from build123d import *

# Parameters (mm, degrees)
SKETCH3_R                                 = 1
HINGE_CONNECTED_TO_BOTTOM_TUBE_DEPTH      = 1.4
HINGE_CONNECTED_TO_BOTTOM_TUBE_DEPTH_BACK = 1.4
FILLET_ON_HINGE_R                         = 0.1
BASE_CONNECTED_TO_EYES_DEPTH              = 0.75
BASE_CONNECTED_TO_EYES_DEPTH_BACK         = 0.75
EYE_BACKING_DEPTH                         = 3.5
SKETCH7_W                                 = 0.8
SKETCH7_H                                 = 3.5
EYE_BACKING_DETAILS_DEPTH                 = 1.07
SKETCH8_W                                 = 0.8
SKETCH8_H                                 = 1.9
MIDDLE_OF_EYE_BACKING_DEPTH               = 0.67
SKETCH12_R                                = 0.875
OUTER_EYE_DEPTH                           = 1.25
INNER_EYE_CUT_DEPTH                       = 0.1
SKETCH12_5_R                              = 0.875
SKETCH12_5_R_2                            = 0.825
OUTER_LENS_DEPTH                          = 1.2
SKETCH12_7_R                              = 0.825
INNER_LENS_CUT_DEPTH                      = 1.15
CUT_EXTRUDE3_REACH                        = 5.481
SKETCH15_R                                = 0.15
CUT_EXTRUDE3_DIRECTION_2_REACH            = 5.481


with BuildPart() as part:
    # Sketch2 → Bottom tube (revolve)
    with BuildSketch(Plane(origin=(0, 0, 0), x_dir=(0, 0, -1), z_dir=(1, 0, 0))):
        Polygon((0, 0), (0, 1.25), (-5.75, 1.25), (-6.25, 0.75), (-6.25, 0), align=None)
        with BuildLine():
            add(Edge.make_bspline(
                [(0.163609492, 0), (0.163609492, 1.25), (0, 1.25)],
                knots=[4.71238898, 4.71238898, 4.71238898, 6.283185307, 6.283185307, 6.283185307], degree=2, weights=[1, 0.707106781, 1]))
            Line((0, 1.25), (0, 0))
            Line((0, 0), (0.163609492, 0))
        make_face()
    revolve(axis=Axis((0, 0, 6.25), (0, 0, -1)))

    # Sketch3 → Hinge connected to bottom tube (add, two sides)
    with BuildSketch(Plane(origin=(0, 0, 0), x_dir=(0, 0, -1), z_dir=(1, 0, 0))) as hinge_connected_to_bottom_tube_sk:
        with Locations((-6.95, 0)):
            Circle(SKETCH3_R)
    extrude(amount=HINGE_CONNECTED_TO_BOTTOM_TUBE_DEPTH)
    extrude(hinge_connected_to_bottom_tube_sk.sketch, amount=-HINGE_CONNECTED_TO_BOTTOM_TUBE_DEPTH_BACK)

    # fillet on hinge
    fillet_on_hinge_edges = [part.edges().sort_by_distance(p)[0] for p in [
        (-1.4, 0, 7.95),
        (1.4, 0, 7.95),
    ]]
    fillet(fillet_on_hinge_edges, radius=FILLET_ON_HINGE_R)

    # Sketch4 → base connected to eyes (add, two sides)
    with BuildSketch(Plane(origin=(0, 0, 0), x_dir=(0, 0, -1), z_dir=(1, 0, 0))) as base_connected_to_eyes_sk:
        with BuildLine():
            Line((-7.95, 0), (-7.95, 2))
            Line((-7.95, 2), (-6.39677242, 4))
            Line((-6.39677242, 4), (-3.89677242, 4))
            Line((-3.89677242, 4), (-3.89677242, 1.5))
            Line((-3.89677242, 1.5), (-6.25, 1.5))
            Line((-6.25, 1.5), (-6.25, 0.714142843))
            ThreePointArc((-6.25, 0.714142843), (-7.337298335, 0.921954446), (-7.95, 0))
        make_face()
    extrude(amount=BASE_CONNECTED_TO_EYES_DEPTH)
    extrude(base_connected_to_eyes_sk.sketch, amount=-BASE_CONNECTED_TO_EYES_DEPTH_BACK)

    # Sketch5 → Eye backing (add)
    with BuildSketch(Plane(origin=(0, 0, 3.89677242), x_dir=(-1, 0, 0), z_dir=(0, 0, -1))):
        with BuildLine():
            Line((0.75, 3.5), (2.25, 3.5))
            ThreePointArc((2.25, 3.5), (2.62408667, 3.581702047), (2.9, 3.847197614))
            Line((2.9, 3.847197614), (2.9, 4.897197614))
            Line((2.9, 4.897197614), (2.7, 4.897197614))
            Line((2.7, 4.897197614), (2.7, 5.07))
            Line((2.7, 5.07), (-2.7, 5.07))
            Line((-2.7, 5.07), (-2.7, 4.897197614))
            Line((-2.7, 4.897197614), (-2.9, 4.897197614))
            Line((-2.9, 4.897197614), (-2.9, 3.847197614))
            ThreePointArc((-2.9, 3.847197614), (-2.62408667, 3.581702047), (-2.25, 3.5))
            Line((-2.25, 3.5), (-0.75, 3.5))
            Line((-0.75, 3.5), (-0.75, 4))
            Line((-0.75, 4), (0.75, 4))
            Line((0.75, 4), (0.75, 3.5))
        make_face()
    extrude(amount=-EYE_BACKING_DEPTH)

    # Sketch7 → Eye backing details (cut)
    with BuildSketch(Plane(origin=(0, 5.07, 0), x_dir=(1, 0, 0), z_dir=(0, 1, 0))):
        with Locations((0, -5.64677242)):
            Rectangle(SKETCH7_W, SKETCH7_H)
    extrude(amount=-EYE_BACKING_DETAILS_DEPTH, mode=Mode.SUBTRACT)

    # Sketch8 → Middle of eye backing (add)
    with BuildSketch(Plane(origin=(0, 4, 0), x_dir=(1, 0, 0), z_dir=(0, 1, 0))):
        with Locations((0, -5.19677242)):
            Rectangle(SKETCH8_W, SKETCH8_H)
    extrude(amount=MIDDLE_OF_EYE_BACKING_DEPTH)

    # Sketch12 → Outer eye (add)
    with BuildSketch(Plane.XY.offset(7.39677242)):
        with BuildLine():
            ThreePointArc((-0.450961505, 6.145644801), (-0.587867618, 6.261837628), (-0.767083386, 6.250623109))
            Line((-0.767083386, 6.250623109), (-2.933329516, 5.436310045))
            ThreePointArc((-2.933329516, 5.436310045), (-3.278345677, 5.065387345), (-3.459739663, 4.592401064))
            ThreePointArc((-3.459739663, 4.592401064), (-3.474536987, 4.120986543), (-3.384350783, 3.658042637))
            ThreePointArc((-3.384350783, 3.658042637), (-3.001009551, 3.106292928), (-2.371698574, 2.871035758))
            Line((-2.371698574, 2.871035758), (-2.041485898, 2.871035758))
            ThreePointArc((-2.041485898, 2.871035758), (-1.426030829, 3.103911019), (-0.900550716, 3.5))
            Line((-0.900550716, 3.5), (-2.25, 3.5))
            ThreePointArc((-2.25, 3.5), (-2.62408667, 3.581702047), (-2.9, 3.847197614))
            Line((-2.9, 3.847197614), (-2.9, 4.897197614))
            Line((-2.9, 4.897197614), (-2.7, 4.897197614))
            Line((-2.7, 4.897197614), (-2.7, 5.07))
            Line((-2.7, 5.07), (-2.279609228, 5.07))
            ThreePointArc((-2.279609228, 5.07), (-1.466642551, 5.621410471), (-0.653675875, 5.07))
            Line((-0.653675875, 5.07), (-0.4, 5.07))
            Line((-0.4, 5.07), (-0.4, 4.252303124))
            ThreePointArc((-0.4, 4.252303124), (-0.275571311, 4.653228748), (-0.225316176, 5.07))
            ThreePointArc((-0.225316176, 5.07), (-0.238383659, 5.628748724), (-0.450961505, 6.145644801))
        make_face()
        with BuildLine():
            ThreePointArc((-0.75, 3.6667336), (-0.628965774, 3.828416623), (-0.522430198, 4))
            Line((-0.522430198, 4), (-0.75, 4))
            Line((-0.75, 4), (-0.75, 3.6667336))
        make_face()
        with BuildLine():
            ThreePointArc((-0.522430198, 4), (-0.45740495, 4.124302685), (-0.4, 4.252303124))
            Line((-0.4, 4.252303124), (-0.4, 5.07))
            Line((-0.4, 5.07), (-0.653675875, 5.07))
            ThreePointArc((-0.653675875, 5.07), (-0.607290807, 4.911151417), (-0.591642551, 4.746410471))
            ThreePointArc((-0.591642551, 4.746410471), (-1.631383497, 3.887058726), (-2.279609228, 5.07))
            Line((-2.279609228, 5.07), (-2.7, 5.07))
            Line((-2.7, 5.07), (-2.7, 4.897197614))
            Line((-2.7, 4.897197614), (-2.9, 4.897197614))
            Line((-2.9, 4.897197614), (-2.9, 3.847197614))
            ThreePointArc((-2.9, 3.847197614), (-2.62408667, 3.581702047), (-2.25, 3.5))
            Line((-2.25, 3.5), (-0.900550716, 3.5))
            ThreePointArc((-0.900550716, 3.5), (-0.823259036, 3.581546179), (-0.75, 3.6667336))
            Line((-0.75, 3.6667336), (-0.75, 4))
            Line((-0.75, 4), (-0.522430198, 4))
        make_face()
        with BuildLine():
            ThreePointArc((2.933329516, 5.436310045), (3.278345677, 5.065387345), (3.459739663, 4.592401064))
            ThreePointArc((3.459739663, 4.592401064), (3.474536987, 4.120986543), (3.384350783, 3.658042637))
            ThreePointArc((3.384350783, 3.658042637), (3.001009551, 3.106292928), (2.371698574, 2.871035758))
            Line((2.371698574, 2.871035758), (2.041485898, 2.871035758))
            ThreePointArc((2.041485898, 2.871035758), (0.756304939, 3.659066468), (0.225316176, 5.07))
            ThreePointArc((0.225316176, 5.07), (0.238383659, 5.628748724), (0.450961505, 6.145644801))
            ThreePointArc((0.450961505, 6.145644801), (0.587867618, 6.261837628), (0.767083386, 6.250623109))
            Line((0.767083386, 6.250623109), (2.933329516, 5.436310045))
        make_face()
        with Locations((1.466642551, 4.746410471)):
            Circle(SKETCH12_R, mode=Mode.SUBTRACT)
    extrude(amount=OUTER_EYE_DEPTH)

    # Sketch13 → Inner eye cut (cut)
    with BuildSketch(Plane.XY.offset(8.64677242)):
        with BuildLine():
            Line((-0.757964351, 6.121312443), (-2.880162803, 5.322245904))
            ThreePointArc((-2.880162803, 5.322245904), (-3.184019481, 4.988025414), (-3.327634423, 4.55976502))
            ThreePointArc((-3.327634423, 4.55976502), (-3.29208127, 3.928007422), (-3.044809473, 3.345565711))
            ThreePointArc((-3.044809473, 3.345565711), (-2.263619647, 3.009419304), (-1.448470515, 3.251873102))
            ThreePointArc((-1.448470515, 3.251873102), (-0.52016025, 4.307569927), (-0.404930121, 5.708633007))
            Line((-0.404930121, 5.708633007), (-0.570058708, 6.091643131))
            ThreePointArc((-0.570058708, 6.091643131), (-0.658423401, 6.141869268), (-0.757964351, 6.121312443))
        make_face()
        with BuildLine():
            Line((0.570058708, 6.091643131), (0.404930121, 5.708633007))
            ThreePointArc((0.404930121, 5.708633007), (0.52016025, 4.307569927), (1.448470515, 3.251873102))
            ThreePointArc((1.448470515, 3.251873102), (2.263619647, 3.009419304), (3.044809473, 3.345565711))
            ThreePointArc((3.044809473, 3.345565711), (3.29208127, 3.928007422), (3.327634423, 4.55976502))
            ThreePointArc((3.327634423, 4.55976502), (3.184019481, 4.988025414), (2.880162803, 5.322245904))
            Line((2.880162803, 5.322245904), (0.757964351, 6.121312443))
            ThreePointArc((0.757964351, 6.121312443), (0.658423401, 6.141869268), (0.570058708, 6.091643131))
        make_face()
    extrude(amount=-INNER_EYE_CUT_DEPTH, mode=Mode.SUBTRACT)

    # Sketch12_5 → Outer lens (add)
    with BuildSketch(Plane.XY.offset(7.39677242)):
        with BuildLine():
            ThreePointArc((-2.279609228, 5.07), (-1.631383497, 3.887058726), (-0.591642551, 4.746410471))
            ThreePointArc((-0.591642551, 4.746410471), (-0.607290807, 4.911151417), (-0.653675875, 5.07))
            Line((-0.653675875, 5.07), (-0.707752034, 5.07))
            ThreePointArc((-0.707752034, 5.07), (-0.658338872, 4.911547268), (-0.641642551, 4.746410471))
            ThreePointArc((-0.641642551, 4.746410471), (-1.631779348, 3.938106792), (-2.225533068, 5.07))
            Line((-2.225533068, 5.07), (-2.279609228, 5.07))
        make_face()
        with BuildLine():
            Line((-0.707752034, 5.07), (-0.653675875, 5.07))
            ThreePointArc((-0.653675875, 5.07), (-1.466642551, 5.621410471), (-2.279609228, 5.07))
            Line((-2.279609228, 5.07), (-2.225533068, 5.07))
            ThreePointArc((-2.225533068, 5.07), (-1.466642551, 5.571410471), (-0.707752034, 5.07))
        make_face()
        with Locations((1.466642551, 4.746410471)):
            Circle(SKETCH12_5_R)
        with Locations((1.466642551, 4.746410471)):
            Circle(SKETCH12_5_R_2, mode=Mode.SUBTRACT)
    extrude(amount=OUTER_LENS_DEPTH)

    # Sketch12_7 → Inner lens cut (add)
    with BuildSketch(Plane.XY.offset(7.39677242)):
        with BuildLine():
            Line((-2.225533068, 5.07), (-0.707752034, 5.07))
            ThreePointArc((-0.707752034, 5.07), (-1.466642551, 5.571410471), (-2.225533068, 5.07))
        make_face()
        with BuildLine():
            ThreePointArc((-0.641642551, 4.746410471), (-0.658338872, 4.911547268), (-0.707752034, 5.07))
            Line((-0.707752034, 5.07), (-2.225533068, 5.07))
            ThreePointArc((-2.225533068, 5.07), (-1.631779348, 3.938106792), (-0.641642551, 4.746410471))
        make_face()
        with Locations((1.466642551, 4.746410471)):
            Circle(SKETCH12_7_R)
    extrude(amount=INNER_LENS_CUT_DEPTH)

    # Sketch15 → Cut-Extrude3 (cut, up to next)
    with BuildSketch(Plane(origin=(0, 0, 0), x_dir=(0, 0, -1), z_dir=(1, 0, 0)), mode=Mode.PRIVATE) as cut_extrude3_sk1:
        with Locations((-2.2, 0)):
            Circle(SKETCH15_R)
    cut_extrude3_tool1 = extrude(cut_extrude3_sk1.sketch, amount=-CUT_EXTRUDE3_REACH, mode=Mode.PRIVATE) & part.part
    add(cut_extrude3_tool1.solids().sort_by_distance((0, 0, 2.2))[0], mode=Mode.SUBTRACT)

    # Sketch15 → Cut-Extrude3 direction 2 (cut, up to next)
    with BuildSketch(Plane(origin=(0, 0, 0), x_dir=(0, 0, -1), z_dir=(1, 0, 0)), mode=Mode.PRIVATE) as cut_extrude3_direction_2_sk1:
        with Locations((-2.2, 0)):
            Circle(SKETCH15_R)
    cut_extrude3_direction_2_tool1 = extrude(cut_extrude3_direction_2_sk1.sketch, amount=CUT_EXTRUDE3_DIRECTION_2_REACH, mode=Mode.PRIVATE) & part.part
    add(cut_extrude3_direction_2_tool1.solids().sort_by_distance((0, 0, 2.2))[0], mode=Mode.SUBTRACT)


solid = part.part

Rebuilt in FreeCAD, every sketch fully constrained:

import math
import FreeCAD as App
import Part
import Sketcher


def edges_at(feature, points):
    """Names of the edges that pass closest to the given points."""
    edges = feature.Shape.Edges
    near = lambda p: min(range(len(edges)), key=lambda i: edges[i].distToShape(Part.Vertex(*p))[0])
    return sorted({f"Edge{near(p) + 1}" for p in points})

doc = App.newDocument("Part")
body = doc.addObject("PartDesign::Body", "Body")

sketch1 = body.newObject("Sketcher::SketchObject", "Sketch")
sketch1.AttachmentSupport = (doc.getObject("YZ_Plane"), [""])
sketch1.MapMode = "FlatFace"
sketch1.addGeometry(Part.LineSegment(App.Vector(1.25, 0, 0), App.Vector(1.25, 5.75, 0)), False)
sketch1.addGeometry(Part.LineSegment(App.Vector(1.25, 5.75, 0), App.Vector(0.75, 6.25, 0)), False)
sketch1.addGeometry(Part.LineSegment(App.Vector(0.75, 6.25, 0), App.Vector(0, 6.25, 0)), False)
sketch1.addGeometry(Part.LineSegment(App.Vector(0, 6.25, 0), App.Vector(0, -0.163609, 0)), False)
sketch1.addGeometry(Part.BSplineCurve([App.Vector(0, -0.163609, 0), App.Vector(1.25, -0.163609, 0), App.Vector(1.25, 0, 0)], [3, 3], [4.71238898, 6.283185307], False, 2, [1, 0.707106781, 1], False), False)
sketch1.addConstraint(Sketcher.Constraint("Block", 4))
sketch1.addConstraint(Sketcher.Constraint("Coincident", 0, 2, 1, 1))
sketch1.addConstraint(Sketcher.Constraint("Coincident", 1, 2, 2, 1))
sketch1.addConstraint(Sketcher.Constraint("Coincident", 2, 2, 3, 1))
sketch1.addConstraint(Sketcher.Constraint("Coincident", 3, 2, 4, 1))
sketch1.addConstraint(Sketcher.Constraint("Coincident", 4, 2, 0, 1))
sketch1.addConstraint(Sketcher.Constraint("Vertical", 0))
sketch1.addConstraint(Sketcher.Constraint("Horizontal", 2))
sketch1.addConstraint(Sketcher.Constraint("Vertical", 3))
sketch1.addConstraint(Sketcher.Constraint("DistanceX", 2, 2, 2, 1, 0.75))
sketch1.addConstraint(Sketcher.Constraint("DistanceY", 0, 1, 0, 2, 5.75))
sketch1.addConstraint(Sketcher.Constraint("DistanceY", 0, 2, 1, 2, 0.5))
revolution = body.newObject("PartDesign::Revolution", "Revolution")
revolution.Profile = sketch1
revolution.ReferenceAxis = (sketch1, ["V_Axis"])
revolution.Angle = 360

sketch2 = body.newObject("Sketcher::SketchObject", "Sketch001")
sketch2.AttachmentSupport = (doc.getObject("YZ_Plane"), [""])
sketch2.MapMode = "FlatFace"
sketch2.addGeometry(Part.Circle(App.Vector(0, 7, 0), App.Vector(0, 0, 1), 1), False)
sketch2.addConstraint(Sketcher.Constraint("PointOnObject", 0, 3, -2))
sketch2.addConstraint(Sketcher.Constraint("Diameter", 0, 2.0))
sketch2.addConstraint(Sketcher.Constraint("DistanceY", -1, 1, 0, 3, 6.95))
pad1 = body.newObject("PartDesign::Pad", "Pad")
pad1.Profile = sketch2
pad1.Type = "TwoLengths"
pad1.Length = 1.4
pad1.Length2 = 1.4
doc.recompute()

fillet = body.newObject("PartDesign::Fillet", "Fillet")
fillet.Base = (pad1, edges_at(pad1, [(-1.4, 0, 7.95), (1.4, 0, 7.95)]))
fillet.Radius = 0.1

sketch3 = body.newObject("Sketcher::SketchObject", "Sketch002")
sketch3.AttachmentSupport = (doc.getObject("YZ_Plane"), [""])
sketch3.MapMode = "FlatFace"
sketch3.addGeometry(Part.LineSegment(App.Vector(2, 8, 0), App.Vector(0, 8, 0)), False)
sketch3.addGeometry(Part.ArcOfCircle(Part.Circle(App.Vector(0, 7, 0), App.Vector(0, 0, 1), 1), math.radians(-44), math.radians(90)), False)
sketch3.addGeometry(Part.LineSegment(App.Vector(0.7, 6.2, 0), App.Vector(1.5, 6.2, 0)), False)
sketch3.addGeometry(Part.LineSegment(App.Vector(1.5, 6.2, 0), App.Vector(1.5, 3.9, 0)), False)
sketch3.addGeometry(Part.LineSegment(App.Vector(1.5, 3.9, 0), App.Vector(4, 3.9, 0)), False)
sketch3.addGeometry(Part.LineSegment(App.Vector(4, 3.9, 0), App.Vector(4, 6.4, 0)), False)
sketch3.addGeometry(Part.LineSegment(App.Vector(4, 6.4, 0), App.Vector(2, 8, 0)), False)
sketch3.addConstraint(Sketcher.Constraint("Tangent", 0, 2, 1, 2))
sketch3.addConstraint(Sketcher.Constraint("Coincident", 1, 1, 2, 1))
sketch3.addConstraint(Sketcher.Constraint("Coincident", 2, 2, 3, 1))
sketch3.addConstraint(Sketcher.Constraint("Coincident", 3, 2, 4, 1))
sketch3.addConstraint(Sketcher.Constraint("Coincident", 4, 2, 5, 1))
sketch3.addConstraint(Sketcher.Constraint("Coincident", 5, 2, 6, 1))
sketch3.addConstraint(Sketcher.Constraint("Coincident", 6, 2, 0, 1))
sketch3.addConstraint(Sketcher.Constraint("Horizontal", 0))
sketch3.addConstraint(Sketcher.Constraint("Horizontal", 2))
sketch3.addConstraint(Sketcher.Constraint("Vertical", 3))
sketch3.addConstraint(Sketcher.Constraint("Horizontal", 4))
sketch3.addConstraint(Sketcher.Constraint("Vertical", 5))
sketch3.addConstraint(Sketcher.Constraint("PointOnObject", 1, 3, -2))
sketch3.addConstraint(Sketcher.Constraint("Equal", 4, 5))
sketch3.addConstraint(Sketcher.Constraint("Radius", 1, 1.0))
sketch3.addConstraint(Sketcher.Constraint("DistanceX", 0, 2, 0, 1, 2.0))
sketch3.addConstraint(Sketcher.Constraint("DistanceX", 4, 1, 4, 2, 2.5))
sketch3.addConstraint(Sketcher.Constraint("DistanceX", -1, 1, 4, 2, 4.0))
sketch3.addConstraint(Sketcher.Constraint("DistanceY", 1, 1, 1, 3, 0.7))
sketch3.addConstraint(Sketcher.Constraint("DistanceY", -1, 1, 1, 3, 6.95))
sketch3.addConstraint(Sketcher.Constraint("DistanceY", 3, 2, 3, 1, 2.353228))
pad2 = body.newObject("PartDesign::Pad", "Pad001")
pad2.Profile = sketch3
pad2.Type = "TwoLengths"
pad2.Length = 0.75
pad2.Length2 = 0.75

sketch4 = body.newObject("Sketcher::SketchObject", "Sketch003")
sketch4.AttachmentSupport = (doc.getObject("XY_Plane"), [""])
sketch4.MapMode = "FlatFace"
sketch4.AttachmentOffset = App.Placement(App.Vector(0, 0, 3.896772), App.Rotation())
sketch4.addGeometry(Part.LineSegment(App.Vector(-0.75, 3.5, 0), App.Vector(-2.25, 3.5, 0)), False)
sketch4.addGeometry(Part.ArcOfCircle(Part.Circle(App.Vector(-2.29, 4.2, 0), App.Vector(0, 0, 1), 0.7), math.radians(-150), math.radians(-87)), False)
sketch4.addGeometry(Part.LineSegment(App.Vector(-2.9, 3.85, 0), App.Vector(-2.9, 4.9, 0)), False)
sketch4.addGeometry(Part.LineSegment(App.Vector(-2.9, 4.9, 0), App.Vector(-2.7, 4.9, 0)), False)
sketch4.addGeometry(Part.LineSegment(App.Vector(-2.7, 4.9, 0), App.Vector(-2.7, 5.07, 0)), False)
sketch4.addGeometry(Part.LineSegment(App.Vector(-2.7, 5.07, 0), App.Vector(2.7, 5.07, 0)), False)
sketch4.addGeometry(Part.LineSegment(App.Vector(2.7, 5.07, 0), App.Vector(2.7, 4.9, 0)), False)
sketch4.addGeometry(Part.LineSegment(App.Vector(2.7, 4.9, 0), App.Vector(2.9, 4.9, 0)), False)
sketch4.addGeometry(Part.LineSegment(App.Vector(2.9, 4.9, 0), App.Vector(2.9, 3.85, 0)), False)
sketch4.addGeometry(Part.ArcOfCircle(Part.Circle(App.Vector(2.29, 4.2, 0), App.Vector(0, 0, 1), 0.7), math.radians(-93), math.radians(-30)), False)
sketch4.addGeometry(Part.LineSegment(App.Vector(2.25, 3.5, 0), App.Vector(0.75, 3.5, 0)), False)
sketch4.addGeometry(Part.LineSegment(App.Vector(0.75, 3.5, 0), App.Vector(0.75, 4, 0)), False)
sketch4.addGeometry(Part.LineSegment(App.Vector(0.75, 4, 0), App.Vector(-0.75, 4, 0)), False)
sketch4.addGeometry(Part.LineSegment(App.Vector(-0.75, 4, 0), App.Vector(-0.75, 3.5, 0)), False)
sketch4.addConstraint(Sketcher.Constraint("Coincident", 0, 2, 1, 2))
sketch4.addConstraint(Sketcher.Constraint("Coincident", 1, 1, 2, 1))
sketch4.addConstraint(Sketcher.Constraint("Coincident", 2, 2, 3, 1))
sketch4.addConstraint(Sketcher.Constraint("Coincident", 3, 2, 4, 1))
sketch4.addConstraint(Sketcher.Constraint("Coincident", 4, 2, 5, 1))
sketch4.addConstraint(Sketcher.Constraint("Coincident", 5, 2, 6, 1))
sketch4.addConstraint(Sketcher.Constraint("Coincident", 6, 2, 7, 1))
sketch4.addConstraint(Sketcher.Constraint("Coincident", 7, 2, 8, 1))
sketch4.addConstraint(Sketcher.Constraint("Coincident", 8, 2, 9, 2))
sketch4.addConstraint(Sketcher.Constraint("Coincident", 9, 1, 10, 1))
sketch4.addConstraint(Sketcher.Constraint("Coincident", 10, 2, 11, 1))
sketch4.addConstraint(Sketcher.Constraint("Coincident", 11, 2, 12, 1))
sketch4.addConstraint(Sketcher.Constraint("Coincident", 12, 2, 13, 1))
sketch4.addConstraint(Sketcher.Constraint("Coincident", 13, 2, 0, 1))
sketch4.addConstraint(Sketcher.Constraint("Horizontal", 0))
sketch4.addConstraint(Sketcher.Constraint("Vertical", 2))
sketch4.addConstraint(Sketcher.Constraint("Horizontal", 3))
sketch4.addConstraint(Sketcher.Constraint("Vertical", 4))
sketch4.addConstraint(Sketcher.Constraint("Horizontal", 5))
sketch4.addConstraint(Sketcher.Constraint("Vertical", 6))
sketch4.addConstraint(Sketcher.Constraint("Horizontal", 7))
sketch4.addConstraint(Sketcher.Constraint("Vertical", 8))
sketch4.addConstraint(Sketcher.Constraint("Horizontal", 10))
sketch4.addConstraint(Sketcher.Constraint("Vertical", 11))
sketch4.addConstraint(Sketcher.Constraint("Horizontal", 12))
sketch4.addConstraint(Sketcher.Constraint("Vertical", 13))
sketch4.addConstraint(Sketcher.Constraint("Equal", 1, 9))
sketch4.addConstraint(Sketcher.Constraint("Symmetric", 1, 3, 9, 3, -2))
sketch4.addConstraint(Sketcher.Constraint("Symmetric", 3, 2, 6, 2, -2))
sketch4.addConstraint(Sketcher.Constraint("Symmetric", 10, 2, 13, 2, -2))
sketch4.addConstraint(Sketcher.Constraint("Horizontal", 1, 1, 8, 2))
sketch4.addConstraint(Sketcher.Constraint("Equal", 10, 12))
sketch4.addConstraint(Sketcher.Constraint("DistanceX", 0, 2, 0, 1, 1.5))
sketch4.addConstraint(Sketcher.Constraint("DistanceX", 3, 1, 3, 2, 0.2))
sketch4.addConstraint(Sketcher.Constraint("DistanceX", 5, 1, 5, 2, 5.4))
sketch4.addConstraint(Sketcher.Constraint("DistanceY", 11, 1, 11, 2, 0.5))
sketch4.addConstraint(Sketcher.Constraint("DistanceY", -1, 1, 11, 2, 4.0))
sketch4.addConstraint(Sketcher.Constraint("DistanceY", 2, 1, 2, 2, 1.05))
sketch4.addConstraint(Sketcher.Constraint("DistanceY", -1, 1, 4, 2, 5.07))
sketch4.addConstraint(Sketcher.Constraint("Radius", 1, 0.703633))
sketch4.addConstraint(Sketcher.Constraint("DistanceY", 4, 1, 4, 2, 0.172802))
pad3 = body.newObject("PartDesign::Pad", "Pad002")
pad3.Profile = sketch4
pad3.Length = 3.5

sketch5 = body.newObject("Sketcher::SketchObject", "Sketch004")
sketch5.AttachmentSupport = (doc.getObject("XZ_Plane"), [""])
sketch5.MapMode = "FlatFace"
sketch5.AttachmentOffset = App.Placement(App.Vector(0, 0, -5.07), App.Rotation())
sketch5.addGeometry(Part.LineSegment(App.Vector(-0.4, 3.9, 0), App.Vector(-0.4, 7.4, 0)), False)
sketch5.addGeometry(Part.LineSegment(App.Vector(-0.4, 7.4, 0), App.Vector(0.4, 7.4, 0)), False)
sketch5.addGeometry(Part.LineSegment(App.Vector(0.4, 7.4, 0), App.Vector(0.4, 3.9, 0)), False)
sketch5.addGeometry(Part.LineSegment(App.Vector(0.4, 3.9, 0), App.Vector(-0.4, 3.9, 0)), False)
sketch5.addConstraint(Sketcher.Constraint("Coincident", 0, 2, 1, 1))
sketch5.addConstraint(Sketcher.Constraint("Coincident", 1, 2, 2, 1))
sketch5.addConstraint(Sketcher.Constraint("Coincident", 2, 2, 3, 1))
sketch5.addConstraint(Sketcher.Constraint("Coincident", 3, 2, 0, 1))
sketch5.addConstraint(Sketcher.Constraint("Vertical", 0))
sketch5.addConstraint(Sketcher.Constraint("Horizontal", 1))
sketch5.addConstraint(Sketcher.Constraint("Vertical", 2))
sketch5.addConstraint(Sketcher.Constraint("Horizontal", 3))
sketch5.addConstraint(Sketcher.Constraint("DistanceX", 1, 1, 1, 2, 0.8))
sketch5.addConstraint(Sketcher.Constraint("DistanceY", 0, 1, 0, 2, 3.5))
sketch5.addConstraint(Sketcher.Constraint("DistanceX", 0, 2, -1, 1, 0.4))
sketch5.addConstraint(Sketcher.Constraint("DistanceY", -1, 1, 0, 2, 7.396772))
pocket1 = body.newObject("PartDesign::Pocket", "Pocket")
pocket1.Profile = sketch5
pocket1.Length = 1.07
pocket1.Reversed = True

sketch6 = body.newObject("Sketcher::SketchObject", "Sketch005")
sketch6.AttachmentSupport = (doc.getObject("XZ_Plane"), [""])
sketch6.MapMode = "FlatFace"
sketch6.AttachmentOffset = App.Placement(App.Vector(0, 0, -4), App.Rotation())
sketch6.addGeometry(Part.LineSegment(App.Vector(-0.4, 4.2, 0), App.Vector(-0.4, 6.1, 0)), False)
sketch6.addGeometry(Part.LineSegment(App.Vector(-0.4, 6.1, 0), App.Vector(0.4, 6.1, 0)), False)
sketch6.addGeometry(Part.LineSegment(App.Vector(0.4, 6.1, 0), App.Vector(0.4, 4.2, 0)), False)
sketch6.addGeometry(Part.LineSegment(App.Vector(0.4, 4.2, 0), App.Vector(-0.4, 4.2, 0)), False)
sketch6.addConstraint(Sketcher.Constraint("Coincident", 0, 2, 1, 1))
sketch6.addConstraint(Sketcher.Constraint("Coincident", 1, 2, 2, 1))
sketch6.addConstraint(Sketcher.Constraint("Coincident", 2, 2, 3, 1))
sketch6.addConstraint(Sketcher.Constraint("Coincident", 3, 2, 0, 1))
sketch6.addConstraint(Sketcher.Constraint("Vertical", 0))
sketch6.addConstraint(Sketcher.Constraint("Horizontal", 1))
sketch6.addConstraint(Sketcher.Constraint("Vertical", 2))
sketch6.addConstraint(Sketcher.Constraint("Horizontal", 3))
sketch6.addConstraint(Sketcher.Constraint("DistanceX", 1, 1, 1, 2, 0.8))
sketch6.addConstraint(Sketcher.Constraint("DistanceY", 0, 1, 0, 2, 1.9))
sketch6.addConstraint(Sketcher.Constraint("DistanceX", 0, 2, -1, 1, 0.4))
sketch6.addConstraint(Sketcher.Constraint("DistanceY", -1, 1, 0, 2, 6.146772))
pad4 = body.newObject("PartDesign::Pad", "Pad003")
pad4.Profile = sketch6
pad4.Length = 0.67
pad4.Reversed = True

sketch7 = body.newObject("Sketcher::SketchObject", "Sketch006")
sketch7.AttachmentSupport = (doc.getObject("XY_Plane"), [""])
sketch7.MapMode = "FlatFace"
sketch7.AttachmentOffset = App.Placement(App.Vector(0, 0, 7.396772), App.Rotation())
sketch7.addGeometry(Part.ArcOfCircle(Part.Circle(App.Vector(-0.66, 6.03, 0), App.Vector(0, 0, 1), 0.24), math.radians(28), math.radians(116)), False)
sketch7.addGeometry(Part.LineSegment(App.Vector(-0.77, 6.25, 0), App.Vector(-2.93, 5.44, 0)), False)
sketch7.addGeometry(Part.ArcOfCircle(Part.Circle(App.Vector(-2.15, 4.36, 0), App.Vector(0, 0, 1), 1.33), math.radians(126), math.radians(170)), False)
sketch7.addGeometry(Part.ArcOfCircle(Part.Circle(App.Vector(-1.37, 4.29, 0), App.Vector(0, 0, 1), 2.11), math.radians(172), math.radians(197)), False)
sketch7.addGeometry(Part.ArcOfCircle(Part.Circle(App.Vector(-2.31, 4, 0), App.Vector(0, 0, 1), 1.13), math.radians(-163), math.radians(-93)), False)
sketch7.addGeometry(Part.LineSegment(App.Vector(-2.37, 2.87, 0), App.Vector(-2.04, 2.87, 0)), False)
sketch7.addGeometry(Part.ArcOfCircle(Part.Circle(App.Vector(-2.55, 5.14, 0), App.Vector(0, 0, 1), 2.32), math.radians(-77), math.radians(-45)), False)
sketch7.addGeometry(Part.ArcOfCircle(Part.Circle(App.Vector(-2.55, 5.14, 0), App.Vector(0, 0, 1), 2.32), math.radians(-44.85), math.radians(-39.31)), False)
sketch7.addGeometry(Part.ArcOfCircle(Part.Circle(App.Vector(-2.55, 5.14, 0), App.Vector(0, 0, 1), 2.32), math.radians(-39.31), math.radians(-29.34)), False)
sketch7.addGeometry(Part.ArcOfCircle(Part.Circle(App.Vector(-2.55, 5.14, 0), App.Vector(0, 0, 1), 2.32), math.radians(-29.34), math.radians(-22.43)), False)
sketch7.addGeometry(Part.ArcOfCircle(Part.Circle(App.Vector(-2.55, 5.14, 0), App.Vector(0, 0, 1), 2.32), math.radians(-22), math.radians(-2)), False)
sketch7.addGeometry(Part.ArcOfCircle(Part.Circle(App.Vector(-1.74, 5.31, 0), App.Vector(0, 0, 1), 1.53), math.radians(-9), math.radians(33)), False)
sketch7.addGeometry(Part.ArcOfCircle(Part.Circle(App.Vector(-1.47, 4.75, 0), App.Vector(0, 0, 1), 0.88), math.radians(22), math.radians(158)), False)
sketch7.addGeometry(Part.ArcOfCircle(Part.Circle(App.Vector(-1.47, 4.75, 0), App.Vector(0, 0, 1), 0.88), math.radians(0), math.radians(22)), False)
sketch7.addGeometry(Part.ArcOfCircle(Part.Circle(App.Vector(-1.47, 4.75, 0), App.Vector(0, 0, 1), 0.88), math.radians(158), math.radians(360)), False)
sketch7.addGeometry(Part.ArcOfCircle(Part.Circle(App.Vector(2.15, 4.36, 0), App.Vector(0, 0, 1), 1.33), math.radians(10), math.radians(54)), False)
sketch7.addGeometry(Part.LineSegment(App.Vector(2.93, 5.44, 0), App.Vector(0.77, 6.25, 0)), False)
sketch7.addGeometry(Part.ArcOfCircle(Part.Circle(App.Vector(0.66, 6.03, 0), App.Vector(0, 0, 1), 0.24), math.radians(64), math.radians(152)), False)
sketch7.addGeometry(Part.ArcOfCircle(Part.Circle(App.Vector(1.74, 5.31, 0), App.Vector(0, 0, 1), 1.53), math.radians(147), math.radians(189)), False)
sketch7.addGeometry(Part.ArcOfCircle(Part.Circle(App.Vector(2.55, 5.14, 0), App.Vector(0, 0, 1), 2.32), math.radians(-178), math.radians(-103)), False)
sketch7.addGeometry(Part.LineSegment(App.Vector(2.04, 2.87, 0), App.Vector(2.37, 2.87, 0)), False)
sketch7.addGeometry(Part.ArcOfCircle(Part.Circle(App.Vector(2.31, 4, 0), App.Vector(0, 0, 1), 1.13), math.radians(-87), math.radians(-17)), False)
sketch7.addGeometry(Part.ArcOfCircle(Part.Circle(App.Vector(1.37, 4.29, 0), App.Vector(0, 0, 1), 2.11), math.radians(-17), math.radians(8)), False)
sketch7.addGeometry(Part.Circle(App.Vector(1.47, 4.75, 0), App.Vector(0, 0, 1), 0.88), False)
sketch7.addConstraint(Sketcher.Constraint("Coincident", 0, 2, 1, 1))
sketch7.addConstraint(Sketcher.Constraint("Coincident", 1, 2, 2, 1))
sketch7.addConstraint(Sketcher.Constraint("Coincident", 2, 2, 3, 1))
sketch7.addConstraint(Sketcher.Constraint("Tangent", 3, 2, 4, 1))
sketch7.addConstraint(Sketcher.Constraint("Coincident", 4, 2, 5, 1))
sketch7.addConstraint(Sketcher.Constraint("Coincident", 5, 2, 6, 1))
sketch7.addConstraint(Sketcher.Constraint("Tangent", 6, 2, 7, 1))
sketch7.addConstraint(Sketcher.Constraint("Tangent", 7, 2, 8, 1))
sketch7.addConstraint(Sketcher.Constraint("Tangent", 8, 2, 9, 1))
sketch7.addConstraint(Sketcher.Constraint("Tangent", 9, 2, 10, 1))
sketch7.addConstraint(Sketcher.Constraint("Coincident", 10, 2, 11, 1))
sketch7.addConstraint(Sketcher.Constraint("Coincident", 11, 2, 0, 1))
sketch7.addConstraint(Sketcher.Constraint("Tangent", 12, 1, 13, 2))
sketch7.addConstraint(Sketcher.Constraint("Tangent", 13, 1, 14, 2))
sketch7.addConstraint(Sketcher.Constraint("Tangent", 14, 1, 12, 2))
sketch7.addConstraint(Sketcher.Constraint("Coincident", 15, 2, 16, 1))
sketch7.addConstraint(Sketcher.Constraint("Coincident", 16, 2, 17, 1))
sketch7.addConstraint(Sketcher.Constraint("Coincident", 17, 2, 18, 1))
sketch7.addConstraint(Sketcher.Constraint("Coincident", 18, 2, 19, 1))
sketch7.addConstraint(Sketcher.Constraint("Coincident", 19, 2, 20, 1))
sketch7.addConstraint(Sketcher.Constraint("Coincident", 20, 2, 21, 1))
sketch7.addConstraint(Sketcher.Constraint("Tangent", 21, 2, 22, 1))
sketch7.addConstraint(Sketcher.Constraint("Coincident", 22, 2, 15, 1))
sketch7.addConstraint(Sketcher.Constraint("Horizontal", 5))
sketch7.addConstraint(Sketcher.Constraint("Horizontal", 20))
sketch7.addConstraint(Sketcher.Constraint("Coincident", 8, 3, 6, 3))
sketch7.addConstraint(Sketcher.Constraint("Coincident", 10, 3, 6, 3))
sketch7.addConstraint(Sketcher.Constraint("Equal", 2, 15))
sketch7.addConstraint(Sketcher.Constraint("Equal", 0, 17))
sketch7.addConstraint(Sketcher.Constraint("Equal", 11, 18))
sketch7.addConstraint(Sketcher.Constraint("Equal", 10, 19))
sketch7.addConstraint(Sketcher.Constraint("Equal", 4, 21))
sketch7.addConstraint(Sketcher.Constraint("Equal", 3, 22))
sketch7.addConstraint(Sketcher.Constraint("Equal", 14, 23))
sketch7.addConstraint(Sketcher.Constraint("Symmetric", 2, 3, 15, 3, -2))
sketch7.addConstraint(Sketcher.Constraint("Symmetric", 0, 3, 17, 3, -2))
sketch7.addConstraint(Sketcher.Constraint("Symmetric", 11, 3, 18, 3, -2))
sketch7.addConstraint(Sketcher.Constraint("Symmetric", 6, 3, 19, 3, -2))
sketch7.addConstraint(Sketcher.Constraint("Symmetric", 4, 3, 21, 3, -2))
sketch7.addConstraint(Sketcher.Constraint("Symmetric", 12, 3, 23, 3, -2))
sketch7.addConstraint(Sketcher.Constraint("Horizontal", 3, 3, 22, 3))
sketch7.addConstraint(Sketcher.Constraint("Horizontal", 10, 2, 12, 1))
sketch7.addConstraint(Sketcher.Constraint("Horizontal", 23, 3, 13, 1))
sketch7.addConstraint(Sketcher.Constraint("Horizontal", 12, 1, 14, 1))
sketch7.addConstraint(Sketcher.Constraint("Horizontal", 1, 2, 15, 2))
sketch7.addConstraint(Sketcher.Constraint("Horizontal", 0, 2, 16, 2))
sketch7.addConstraint(Sketcher.Constraint("Horizontal", 5, 2, 19, 2))
sketch7.addConstraint(Sketcher.Constraint("Diameter", 23, 1.75))
sketch7.addConstraint(Sketcher.Constraint("DistanceY", -1, 1, 8, 2, 4.0))
sketch7.addConstraint(Sketcher.Constraint("DistanceY", -1, 1, 6, 2, 3.5))
sketch7.addConstraint(Sketcher.Constraint("DistanceX", 9, 2, -1, 1, 0.4))
sketch7.addConstraint(Sketcher.Constraint("DistanceX", 7, 2, -1, 1, 0.75))
sketch7.addConstraint(Sketcher.Constraint("DistanceY", -1, 1, 10, 2, 5.07))
sketch7.addConstraint(Sketcher.Constraint("Radius", 0, 0.240181))
sketch7.addConstraint(Sketcher.Constraint("Radius", 2, 1.330705))
sketch7.addConstraint(Sketcher.Constraint("Radius", 3, 2.112046))
sketch7.addConstraint(Sketcher.Constraint("Radius", 4, 1.126095))
sketch7.addConstraint(Sketcher.Constraint("Radius", 6, 2.323406))
sketch7.addConstraint(Sketcher.Constraint("Radius", 11, 1.532334))
sketch7.addConstraint(Sketcher.Constraint("DistanceY", -1, 1, 2, 2, 4.592401))
sketch7.addConstraint(Sketcher.Constraint("DistanceX", 4, 2, -1, 1, 2.371699))
sketch7.addConstraint(Sketcher.Constraint("DistanceX", 4, 3, 2, 3, 0.160699))
sketch7.addConstraint(Sketcher.Constraint("DistanceY", 2, 3, 12, 3, 0.385301))
sketch7.addConstraint(Sketcher.Constraint("DistanceX", 0, 3, 11, 2, 0.212601))
sketch7.addConstraint(Sketcher.Constraint("DistanceX", 7, 3, 14, 1, 0.268099))
sketch7.addConstraint(Sketcher.Constraint("DistanceY", 15, 3, 15, 2, 1.075201))
sketch7.addConstraint(Sketcher.Constraint("DistanceX", 5, 1, 5, 2, 0.330213))
sketch7.addConstraint(Sketcher.Constraint("DistanceX", 2, 3, -1, 1, 2.149289))
sketch7.addConstraint(Sketcher.Constraint("DistanceY", -1, 1, 2, 3, 4.361109))
sketch7.addConstraint(Sketcher.Constraint("DistanceY", -1, 1, 4, 3, 3.995439))
sketch7.addConstraint(Sketcher.Constraint("DistanceX", 6, 3, -1, 1, 2.547708))
sketch7.addConstraint(Sketcher.Constraint("DistanceY", -1, 1, 11, 3, 5.314148))
sketch7.addConstraint(Sketcher.Constraint("DistanceX", 11, 2, -1, 1, 0.450962))
sketch7.addConstraint(Sketcher.Constraint("DistanceX", 0, 2, 0, 3, 0.103521))
pad5 = body.newObject("PartDesign::Pad", "Pad004")
pad5.Profile = sketch7
pad5.Length = 1.25

sketch8 = body.newObject("Sketcher::SketchObject", "Sketch007")
sketch8.AttachmentSupport = (doc.getObject("XY_Plane"), [""])
sketch8.MapMode = "FlatFace"
sketch8.AttachmentOffset = App.Placement(App.Vector(0, 0, 8.646772), App.Rotation())
sketch8.addGeometry(Part.LineSegment(App.Vector(-0.76, 6.12, 0), App.Vector(-2.88, 5.32, 0)), False)
sketch8.addGeometry(Part.ArcOfCircle(Part.Circle(App.Vector(-2.24, 4.43, 0), App.Vector(0, 0, 1), 1.1), math.radians(126), math.radians(173)), False)
sketch8.addGeometry(Part.ArcOfCircle(Part.Circle(App.Vector(-1.5, 4.35, 0), App.Vector(0, 0, 1), 1.84), math.radians(173), math.radians(213)), False)
sketch8.addGeometry(Part.ArcOfCircle(Part.Circle(App.Vector(-2.19, 4.26, 0), App.Vector(0, 0, 1), 1.25), math.radians(-133), math.radians(-54)), False)
sketch8.addGeometry(Part.ArcOfCircle(Part.Circle(App.Vector(-2.58, 5.18, 0), App.Vector(0, 0, 1), 2.24), math.radians(-60), math.radians(14)), False)
sketch8.addGeometry(Part.LineSegment(App.Vector(-0.4, 5.71, 0), App.Vector(-0.57, 6.09, 0)), False)
sketch8.addGeometry(Part.ArcOfCircle(Part.Circle(App.Vector(-0.68, 6, 0), App.Vector(0, 0, 1), 0.14), math.radians(40), math.radians(122)), False)
sketch8.addGeometry(Part.LineSegment(App.Vector(0.57, 6.09, 0), App.Vector(0.4, 5.71, 0)), False)
sketch8.addGeometry(Part.ArcOfCircle(Part.Circle(App.Vector(2.58, 5.18, 0), App.Vector(0, 0, 1), 2.24), math.radians(166), math.radians(240)), False)
sketch8.addGeometry(Part.ArcOfCircle(Part.Circle(App.Vector(2.19, 4.26, 0), App.Vector(0, 0, 1), 1.25), math.radians(-126), math.radians(-47)), False)
sketch8.addGeometry(Part.ArcOfCircle(Part.Circle(App.Vector(1.5, 4.35, 0), App.Vector(0, 0, 1), 1.84), math.radians(-33), math.radians(7)), False)
sketch8.addGeometry(Part.ArcOfCircle(Part.Circle(App.Vector(2.24, 4.43, 0), App.Vector(0, 0, 1), 1.1), math.radians(7), math.radians(54)), False)
sketch8.addGeometry(Part.LineSegment(App.Vector(2.88, 5.32, 0), App.Vector(0.76, 6.12, 0)), False)
sketch8.addGeometry(Part.ArcOfCircle(Part.Circle(App.Vector(0.68, 6, 0), App.Vector(0, 0, 1), 0.14), math.radians(58), math.radians(140)), False)
sketch8.addConstraint(Sketcher.Constraint("Coincident", 0, 2, 1, 1))
sketch8.addConstraint(Sketcher.Constraint("Tangent", 1, 2, 2, 1))
sketch8.addConstraint(Sketcher.Constraint("Coincident", 2, 2, 3, 1))
sketch8.addConstraint(Sketcher.Constraint("Coincident", 3, 2, 4, 1))
sketch8.addConstraint(Sketcher.Constraint("Coincident", 4, 2, 5, 1))
sketch8.addConstraint(Sketcher.Constraint("Coincident", 5, 2, 6, 1))
sketch8.addConstraint(Sketcher.Constraint("Coincident", 6, 2, 0, 1))
sketch8.addConstraint(Sketcher.Constraint("Coincident", 7, 2, 8, 1))
sketch8.addConstraint(Sketcher.Constraint("Coincident", 8, 2, 9, 1))
sketch8.addConstraint(Sketcher.Constraint("Coincident", 9, 2, 10, 1))
sketch8.addConstraint(Sketcher.Constraint("Tangent", 10, 2, 11, 1))
sketch8.addConstraint(Sketcher.Constraint("Coincident", 11, 2, 12, 1))
sketch8.addConstraint(Sketcher.Constraint("Coincident", 12, 2, 13, 1))
sketch8.addConstraint(Sketcher.Constraint("Coincident", 13, 2, 7, 1))
sketch8.addConstraint(Sketcher.Constraint("Equal", 4, 8))
sketch8.addConstraint(Sketcher.Constraint("Equal", 3, 9))
sketch8.addConstraint(Sketcher.Constraint("Equal", 2, 10))
sketch8.addConstraint(Sketcher.Constraint("Equal", 1, 11))
sketch8.addConstraint(Sketcher.Constraint("Equal", 6, 13))
sketch8.addConstraint(Sketcher.Constraint("Symmetric", 4, 3, 8, 3, -2))
sketch8.addConstraint(Sketcher.Constraint("Symmetric", 3, 3, 9, 3, -2))
sketch8.addConstraint(Sketcher.Constraint("Symmetric", 2, 3, 10, 3, -2))
sketch8.addConstraint(Sketcher.Constraint("Symmetric", 6, 3, 13, 3, -2))
sketch8.addConstraint(Sketcher.Constraint("Symmetric", 0, 2, 11, 2, -2))
sketch8.addConstraint(Sketcher.Constraint("Horizontal", 4, 2, 7, 2))
sketch8.addConstraint(Sketcher.Constraint("Horizontal", 6, 2, 12, 2))
sketch8.addConstraint(Sketcher.Constraint("Horizontal", 5, 2, 13, 2))
sketch8.addConstraint(Sketcher.Constraint("Radius", 1, 1.09814))
sketch8.addConstraint(Sketcher.Constraint("Radius", 4, 2.237128))
sketch8.addConstraint(Sketcher.Constraint("Radius", 2, 1.841797))
sketch8.addConstraint(Sketcher.Constraint("Radius", 3, 1.247855))
sketch8.addConstraint(Sketcher.Constraint("Radius", 6, 0.144167))
sketch8.addConstraint(Sketcher.Constraint("DistanceX", 3, 3, 6, 3, 1.509598))
sketch8.addConstraint(Sketcher.Constraint("DistanceX", 1, 2, 4, 3, 0.7484))
sketch8.addConstraint(Sketcher.Constraint("DistanceY", 2, 2, 1, 2, 1.214199))
sketch8.addConstraint(Sketcher.Constraint("DistanceY", 2, 3, 4, 2, 1.362799))
sketch8.addConstraint(Sketcher.Constraint("Distance", 0, 2.267649))
sketch8.addConstraint(Sketcher.Constraint("Distance", 5, 0.41709))
sketch8.addConstraint(Sketcher.Constraint("DistanceY", -1, 1, 3, 3, 4.255131))
sketch8.addConstraint(Sketcher.Constraint("DistanceY", -1, 1, 4, 3, 5.182188))
sketch8.addConstraint(Sketcher.Constraint("DistanceX", 6, 3, -1, 1, 0.680908))
sketch8.addConstraint(Sketcher.Constraint("DistanceX", 2, 2, -1, 1, 3.044809))
sketch8.addConstraint(Sketcher.Constraint("DistanceX", 3, 2, -1, 1, 1.448471))
sketch8.addConstraint(Sketcher.Constraint("DistanceX", 5, 2, -1, 1, 0.570059))
sketch8.addConstraint(Sketcher.Constraint("DistanceX", 0, 2, 4, 3, 0.300929))
pocket2 = body.newObject("PartDesign::Pocket", "Pocket001")
pocket2.Profile = sketch8
pocket2.Length = 0.1

sketch9 = body.newObject("Sketcher::SketchObject", "Sketch008")
sketch9.AttachmentSupport = (doc.getObject("XY_Plane"), [""])
sketch9.MapMode = "FlatFace"
sketch9.AttachmentOffset = App.Placement(App.Vector(0, 0, 7.396772), App.Rotation())
sketch9.addGeometry(Part.ArcOfCircle(Part.Circle(App.Vector(-1.47, 4.75, 0), App.Vector(0, 0, 1), 0.88), math.radians(0), math.radians(22)), False)
sketch9.addGeometry(Part.ArcOfCircle(Part.Circle(App.Vector(-1.47, 4.75, 0), App.Vector(0, 0, 1), 0.88), math.radians(22), math.radians(158)), False)
sketch9.addGeometry(Part.ArcOfCircle(Part.Circle(App.Vector(-1.47, 4.75, 0), App.Vector(0, 0, 1), 0.88), math.radians(158), math.radians(360)), False)
sketch9.addGeometry(Part.ArcOfCircle(Part.Circle(App.Vector(-1.47, 4.75, 0), App.Vector(0, 0, 1), 0.83), math.radians(0), math.radians(23)), False)
sketch9.addGeometry(Part.ArcOfCircle(Part.Circle(App.Vector(-1.47, 4.75, 0), App.Vector(0, 0, 1), 0.82), math.radians(157), math.radians(360)), False)
sketch9.addGeometry(Part.ArcOfCircle(Part.Circle(App.Vector(-1.47, 4.75, 0), App.Vector(0, 0, 1), 0.82), math.radians(23), math.radians(157)), False)
sketch9.addGeometry(Part.Circle(App.Vector(1.47, 4.75, 0), App.Vector(0, 0, 1), 0.88), False)
sketch9.addGeometry(Part.Circle(App.Vector(1.47, 4.75, 0), App.Vector(0, 0, 1), 0.82), False)
sketch9.addConstraint(Sketcher.Constraint("Tangent", 0, 2, 1, 1))
sketch9.addConstraint(Sketcher.Constraint("Tangent", 1, 2, 2, 1))
sketch9.addConstraint(Sketcher.Constraint("Tangent", 2, 2, 0, 1))
sketch9.addConstraint(Sketcher.Constraint("Tangent", 3, 1, 4, 2))
sketch9.addConstraint(Sketcher.Constraint("Tangent", 4, 1, 5, 2))
sketch9.addConstraint(Sketcher.Constraint("Tangent", 5, 1, 3, 2))
sketch9.addConstraint(Sketcher.Constraint("Coincident", 3, 3, 0, 3))
sketch9.addConstraint(Sketcher.Constraint("Coincident", 7, 3, 6, 3))
sketch9.addConstraint(Sketcher.Constraint("Equal", 2, 6))
sketch9.addConstraint(Sketcher.Constraint("Equal", 5, 7))
sketch9.addConstraint(Sketcher.Constraint("Symmetric", 0, 3, 6, 3, -2))
sketch9.addConstraint(Sketcher.Constraint("Horizontal", 0, 2, 1, 2))
sketch9.addConstraint(Sketcher.Constraint("Horizontal", 7, 3, 2, 2))
sketch9.addConstraint(Sketcher.Constraint("Horizontal", 2, 2, 3, 1))
sketch9.addConstraint(Sketcher.Constraint("Horizontal", 1, 2, 4, 1))
sketch9.addConstraint(Sketcher.Constraint("Horizontal", 4, 1, 5, 1))
sketch9.addConstraint(Sketcher.Constraint("Diameter", 6, 1.75))
sketch9.addConstraint(Sketcher.Constraint("Diameter", 7, 1.65))
sketch9.addConstraint(Sketcher.Constraint("DistanceY", -1, 1, 0, 2, 5.07))
sketch9.addConstraint(Sketcher.Constraint("DistanceY", -1, 1, 0, 3, 4.74641))
sketch9.addConstraint(Sketcher.Constraint("DistanceX", 1, 2, -1, 1, 2.279609))
pad6 = body.newObject("PartDesign::Pad", "Pad005")
pad6.Profile = sketch9
pad6.Length = 1.2

sketch10 = body.newObject("Sketcher::SketchObject", "Sketch009")
sketch10.AttachmentSupport = (doc.getObject("XY_Plane"), [""])
sketch10.MapMode = "FlatFace"
sketch10.AttachmentOffset = App.Placement(App.Vector(0, 0, 7.396772), App.Rotation())
sketch10.addGeometry(Part.ArcOfCircle(Part.Circle(App.Vector(-1.47, 4.75, 0), App.Vector(0, 0, 1), 0.82), math.radians(23), math.radians(157)), False)
sketch10.addGeometry(Part.ArcOfCircle(Part.Circle(App.Vector(-1.47, 4.75, 0), App.Vector(0, 0, 1), 0.82), math.radians(157), math.radians(360)), False)
sketch10.addGeometry(Part.ArcOfCircle(Part.Circle(App.Vector(-1.47, 4.75, 0), App.Vector(0, 0, 1), 0.83), math.radians(0), math.radians(23)), False)
sketch10.addGeometry(Part.Circle(App.Vector(1.47, 4.75, 0), App.Vector(0, 0, 1), 0.82), False)
sketch10.addConstraint(Sketcher.Constraint("Tangent", 0, 2, 1, 1))
sketch10.addConstraint(Sketcher.Constraint("Tangent", 1, 2, 2, 1))
sketch10.addConstraint(Sketcher.Constraint("Tangent", 2, 2, 0, 1))
sketch10.addConstraint(Sketcher.Constraint("Equal", 2, 3))
sketch10.addConstraint(Sketcher.Constraint("Symmetric", 0, 3, 3, 3, -2))
sketch10.addConstraint(Sketcher.Constraint("Horizontal", 3, 3, 1, 2))
sketch10.addConstraint(Sketcher.Constraint("Horizontal", 0, 2, 2, 2))
sketch10.addConstraint(Sketcher.Constraint("Diameter", 3, 1.65))
sketch10.addConstraint(Sketcher.Constraint("DistanceY", -1, 1, 0, 2, 5.07))
sketch10.addConstraint(Sketcher.Constraint("DistanceY", -1, 1, 0, 3, 4.74641))
sketch10.addConstraint(Sketcher.Constraint("DistanceX", 0, 3, -1, 1, 1.466643))
pad7 = body.newObject("PartDesign::Pad", "Pad006")
pad7.Profile = sketch10
pad7.Length = 1.15

sketch11 = body.newObject("Sketcher::SketchObject", "Sketch010")
sketch11.AttachmentSupport = (doc.getObject("YZ_Plane"), [""])
sketch11.MapMode = "FlatFace"
sketch11.addGeometry(Part.Circle(App.Vector(0, 2.2, 0), App.Vector(0, 0, 1), 0.15), False)
sketch11.addConstraint(Sketcher.Constraint("PointOnObject", 0, 3, -2))
sketch11.addConstraint(Sketcher.Constraint("Diameter", 0, 0.3))
sketch11.addConstraint(Sketcher.Constraint("DistanceY", -1, 1, 0, 3, 2.2))
pocket3 = body.newObject("PartDesign::Pocket", "Pocket002")
pocket3.Profile = sketch11
pocket3.Type = "UpToFirst"

sketch12 = body.newObject("Sketcher::SketchObject", "Sketch011")
sketch12.AttachmentSupport = (doc.getObject("YZ_Plane"), [""])
sketch12.MapMode = "FlatFace"
sketch12.addGeometry(Part.Circle(App.Vector(0, 2.2, 0), App.Vector(0, 0, 1), 0.15), False)
sketch12.addConstraint(Sketcher.Constraint("PointOnObject", 0, 3, -2))
sketch12.addConstraint(Sketcher.Constraint("Diameter", 0, 0.3))
sketch12.addConstraint(Sketcher.Constraint("DistanceY", -1, 1, 0, 3, 2.2))
pocket4 = body.newObject("PartDesign::Pocket", "Pocket003")
pocket4.Profile = sketch12
pocket4.Length = 1.25
pocket4.Reversed = True

doc.recompute()
